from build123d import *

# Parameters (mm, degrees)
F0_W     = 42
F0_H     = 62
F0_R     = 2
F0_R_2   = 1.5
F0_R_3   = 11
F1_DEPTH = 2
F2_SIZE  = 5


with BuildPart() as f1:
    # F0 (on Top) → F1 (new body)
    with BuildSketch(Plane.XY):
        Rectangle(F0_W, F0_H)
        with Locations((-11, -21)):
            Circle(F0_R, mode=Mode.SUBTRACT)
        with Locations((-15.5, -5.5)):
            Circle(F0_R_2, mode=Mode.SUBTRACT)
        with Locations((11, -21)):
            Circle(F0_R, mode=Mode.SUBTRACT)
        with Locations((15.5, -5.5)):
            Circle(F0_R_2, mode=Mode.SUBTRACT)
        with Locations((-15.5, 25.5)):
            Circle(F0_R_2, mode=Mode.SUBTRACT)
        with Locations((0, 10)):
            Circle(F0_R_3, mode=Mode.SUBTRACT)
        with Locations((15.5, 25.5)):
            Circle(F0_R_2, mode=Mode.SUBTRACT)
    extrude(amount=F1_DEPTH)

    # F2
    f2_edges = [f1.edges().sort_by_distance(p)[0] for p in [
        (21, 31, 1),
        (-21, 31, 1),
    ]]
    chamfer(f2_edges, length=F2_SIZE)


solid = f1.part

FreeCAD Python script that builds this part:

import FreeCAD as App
import Part
import Sketcher
from FreeCAD import Vector
Q = App.Units.Quantity


def edges_at(feature, points):
    """Names of the edges that pass closest to the given points."""
    edges = feature.Shape.Edges
    near = lambda p: min(range(len(edges)), key=lambda i: edges[i].distToShape(Part.Vertex(*p))[0])
    return sorted({f"Edge{near(p) + 1}" for p in points})

doc = App.newDocument("Part")
body = doc.addObject("PartDesign::Body", "Body")

# Sketch on XY plane
sketch1 = body.newObject("Sketcher::SketchObject", "Sketch")
sketch1.AttachmentSupport = (doc.getObject("XY_Plane"), [""])
sketch1.MapMode = "FlatFace"
sketch1.addGeometry([
    Part.LineSegment(Vector(-21, 31, 0), Vector(-21, -31, 0)),  # 0
    Part.LineSegment(Vector(-21, -31, 0), Vector(21, -31, 0)),  # 1
    Part.LineSegment(Vector(21, -31, 0), Vector(21, 31, 0)),  # 2
    Part.LineSegment(Vector(21, 31, 0), Vector(-21, 31, 0)),  # 3
    Part.Circle(Vector(-11, -21, 0), Vector(0, 0, 1), 2),  # 4
    Part.Circle(Vector(-15.5, -5.5, 0), Vector(0, 0, 1), 1.5),  # 5
    Part.Circle(Vector(11, -21, 0), Vector(0, 0, 1), 2),  # 6
    Part.Circle(Vector(15.5, -5.5, 0), Vector(0, 0, 1), 1.5),  # 7
    Part.Circle(Vector(-15.5, 25.5, 0), Vector(0, 0, 1), 1.5),  # 8
    Part.Circle(Vector(0, 10, 0), Vector(0, 0, 1), 11),  # 9
    Part.Circle(Vector(15.5, 25.5, 0), Vector(0, 0, 1), 1.5),  # 10
], False)
sketch1.addConstraint([
    Sketcher.Constraint("Coincident", 0, 2, 1, 1),
    Sketcher.Constraint("Coincident", 1, 2, 2, 1),
    Sketcher.Constraint("Coincident", 2, 2, 3, 1),
    Sketcher.Constraint("Coincident", 3, 2, 0, 1),
    Sketcher.Constraint("Vertical", 0),
    Sketcher.Constraint("Horizontal", 1),
    Sketcher.Constraint("Vertical", 2),
    Sketcher.Constraint("Horizontal", 3),
    Sketcher.Constraint("Equal", 4, 6),
    Sketcher.Constraint("Equal", 5, 7),
    Sketcher.Constraint("Equal", 7, 8),
    Sketcher.Constraint("Equal", 8, 10),
    Sketcher.Constraint("Symmetric", 0, 2, 2, 2, -1, 1),
    Sketcher.Constraint("Symmetric", 4, 3, 6, 3, -2),
    Sketcher.Constraint("Symmetric", 5, 3, 7, 3, -2),
    Sketcher.Constraint("Symmetric", 8, 3, 10, 3, -2),
    Sketcher.Constraint("PointOnObject", 9, 3, -2),
    Sketcher.Constraint("Vertical", 5, 3, 8, 3),
    Sketcher.Constraint("Diameter", 4, Q("4 mm")),
    Sketcher.Constraint("Diameter", 5, Q("3 mm")),
    Sketcher.Constraint("Diameter", 9, Q("22 mm")),
    Sketcher.Constraint("DistanceX", 1, 1, 1, 2, Q("42 mm")),
    Sketcher.Constraint("DistanceY", 0, 2, 0, 1, Q("62 mm")),
    Sketcher.Constraint("DistanceX", 4, 3, -1, 1, Q("11 mm")),
    Sketcher.Constraint("DistanceY", 4, 3, -1, 1, Q("21 mm")),
    Sketcher.Constraint("DistanceY", -1, 1, 9, 3, Q("10 mm")),
    Sketcher.Constraint("DistanceX", 5, 3, 7, 3, Q("31 mm")),
    Sketcher.Constraint("DistanceY", 5, 3, 8, 3, Q("31 mm")),
    Sketcher.Constraint("DistanceY", 5, 3, -1, 1, Q("5.5 mm")),
])
pad1 = body.newObject("PartDesign::Pad", "Pad")
pad1.Profile = sketch1
pad1.Length = 2
doc.recompute()

chamfer = body.newObject("PartDesign::Chamfer", "Chamfer")
chamfer.Base = (pad1, edges_at(pad1, [(21, 31, 1), (-21, 31, 1)]))
chamfer.Size = 5

doc.recompute()
